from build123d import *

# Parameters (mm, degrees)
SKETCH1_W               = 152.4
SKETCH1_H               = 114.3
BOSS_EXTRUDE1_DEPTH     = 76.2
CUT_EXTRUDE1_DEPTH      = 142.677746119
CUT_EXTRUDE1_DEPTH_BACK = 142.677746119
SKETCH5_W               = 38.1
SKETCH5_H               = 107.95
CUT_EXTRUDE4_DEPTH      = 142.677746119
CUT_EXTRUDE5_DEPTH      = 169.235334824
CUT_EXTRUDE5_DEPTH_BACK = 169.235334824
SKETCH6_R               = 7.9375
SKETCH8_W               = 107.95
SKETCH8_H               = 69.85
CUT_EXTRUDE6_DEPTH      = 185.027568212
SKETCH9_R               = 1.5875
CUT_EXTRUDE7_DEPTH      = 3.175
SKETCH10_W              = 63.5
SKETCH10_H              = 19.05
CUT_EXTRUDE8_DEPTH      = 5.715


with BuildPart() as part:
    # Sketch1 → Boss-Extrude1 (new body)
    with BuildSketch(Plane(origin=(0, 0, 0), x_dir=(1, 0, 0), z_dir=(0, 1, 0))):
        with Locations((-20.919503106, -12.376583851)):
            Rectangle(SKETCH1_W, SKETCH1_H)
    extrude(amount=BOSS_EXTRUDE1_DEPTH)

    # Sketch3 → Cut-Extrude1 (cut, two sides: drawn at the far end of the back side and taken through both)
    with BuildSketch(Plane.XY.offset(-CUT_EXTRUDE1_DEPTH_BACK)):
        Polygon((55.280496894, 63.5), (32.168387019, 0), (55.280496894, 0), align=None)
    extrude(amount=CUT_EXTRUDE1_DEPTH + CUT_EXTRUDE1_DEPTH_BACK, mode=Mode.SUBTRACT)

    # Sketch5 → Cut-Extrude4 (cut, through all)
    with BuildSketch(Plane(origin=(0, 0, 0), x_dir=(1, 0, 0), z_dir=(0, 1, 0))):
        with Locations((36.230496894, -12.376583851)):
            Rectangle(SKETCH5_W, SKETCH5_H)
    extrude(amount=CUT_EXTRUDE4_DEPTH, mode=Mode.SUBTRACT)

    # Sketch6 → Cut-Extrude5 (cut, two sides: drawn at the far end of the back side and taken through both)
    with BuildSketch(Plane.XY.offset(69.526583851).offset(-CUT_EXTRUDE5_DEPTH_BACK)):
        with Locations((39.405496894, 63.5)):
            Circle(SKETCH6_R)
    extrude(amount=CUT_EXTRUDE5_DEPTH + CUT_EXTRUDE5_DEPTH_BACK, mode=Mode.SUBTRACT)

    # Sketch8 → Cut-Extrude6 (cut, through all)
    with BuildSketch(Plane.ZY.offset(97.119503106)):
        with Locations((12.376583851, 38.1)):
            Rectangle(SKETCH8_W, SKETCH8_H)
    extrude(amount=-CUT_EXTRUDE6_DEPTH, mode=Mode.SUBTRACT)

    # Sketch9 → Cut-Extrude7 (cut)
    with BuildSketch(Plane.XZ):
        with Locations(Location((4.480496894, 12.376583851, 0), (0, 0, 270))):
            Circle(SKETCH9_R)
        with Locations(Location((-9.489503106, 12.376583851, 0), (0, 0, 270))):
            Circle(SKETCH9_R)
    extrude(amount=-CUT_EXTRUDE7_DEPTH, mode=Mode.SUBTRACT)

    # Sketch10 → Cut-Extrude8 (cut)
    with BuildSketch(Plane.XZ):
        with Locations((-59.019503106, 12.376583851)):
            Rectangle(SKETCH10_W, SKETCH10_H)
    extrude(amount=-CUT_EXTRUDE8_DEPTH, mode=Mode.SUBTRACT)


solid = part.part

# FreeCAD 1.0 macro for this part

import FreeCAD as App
import Part
import Sketcher

V = App.Vector
Q = App.Units.Quantity


def add_polygon(sketch, points):
    """Adds a closed chain of lines whose ends are joined by coincident constraints."""
    first, n = sketch.GeometryCount, len(points)
    for a, b in zip(points, points[1:] + points[:1]):
        sketch.addGeometry(Part.LineSegment(App.Vector(*a, 0), App.Vector(*b, 0)), False)
    for i in range(n):
        sketch.addConstraint(Sketcher.Constraint("Coincident", first + i, 2, first + (i + 1) % n, 1))

doc = App.newDocument("Part")
body = doc.addObject("PartDesign::Body", "Body")

sketch1 = body.newObject("Sketcher::SketchObject", "Sketch")
sketch1.AttachmentSupport = (doc.getObject("XZ_Plane"), [""])
sketch1.MapMode = "FlatFace"
add_polygon(sketch1, [(-97, -45), (-97, 70), (55, 70), (55, -45)])
sketch1.addConstraint([
    Sketcher.Constraint("Vertical", 0),
    Sketcher.Constraint("Horizontal", 1),
    Sketcher.Constraint("Vertical", 2),
    Sketcher.Constraint("Horizontal", 3),
    Sketcher.Constraint("DistanceX", 1, 1, 1, 2, Q("6 in")),
    Sketcher.Constraint("DistanceY", 0, 1, 0, 2, Q("4.5 in")),
    Sketcher.Constraint("DistanceX", 0, 2, -1, 1, Q("97.119503 mm")),
    Sketcher.Constraint("DistanceY", -1, 1, 0, 2, Q("69.526584 mm")),
])
pad1 = body.newObject("PartDesign::Pad", "Pad")
pad1.Profile = sketch1
pad1.Length = Q("3 in")
pad1.Reversed = True

sketch2 = body.newObject("Sketcher::SketchObject", "Sketch001")
sketch2.AttachmentSupport = (doc.getObject("XY_Plane"), [""])
sketch2.MapMode = "FlatFace"
add_polygon(sketch2, [(55, 64), (32, 0), (55, 0)])
sketch2.addConstraint([
    Sketcher.Constraint("Horizontal", 1),
    Sketcher.Constraint("Vertical", 2),
    Sketcher.Constraint("PointOnObject", 0, 2, -1),
    Sketcher.Constraint("DistanceY", 2, 1, 2, 2, Q("2.5 in")),
    Sketcher.Constraint("Angle", 0, Q("-110 deg")),
    Sketcher.Constraint("DistanceX", -1, 1, 0, 2, Q("32.168387 mm")),
])
pocket1 = body.newObject("PartDesign::Pocket", "Pocket")
pocket1.Profile = sketch2
pocket1.Type = "ThroughAll"
pocket1.Midplane = True

sketch3 = body.newObject("Sketcher::SketchObject", "Sketch002")
sketch3.AttachmentSupport = (doc.getObject("XZ_Plane"), [""])
sketch3.MapMode = "FlatFace"
add_polygon(sketch3, [(17, -42), (17, 66), (55, 66), (55, -42)])
sketch3.addConstraint([
    Sketcher.Constraint("Vertical", 0),
    Sketcher.Constraint("Horizontal", 1),
    Sketcher.Constraint("Vertical", 2),
    Sketcher.Constraint("Horizontal", 3),
    Sketcher.Constraint("DistanceX", 1, 1, 1, 2, Q("1.5 in")),
    Sketcher.Constraint("DistanceY", 0, 1, 0, 2, Q("4.25 in")),
    Sketcher.Constraint("DistanceX", -1, 1, 0, 2, Q("17.180497 mm")),
    Sketcher.Constraint("DistanceY", -1, 1, 0, 2, Q("66.351584 mm")),
])
pocket2 = body.newObject("PartDesign::Pocket", "Pocket001")
pocket2.Profile = sketch3
pocket2.Type = "ThroughAll"

sketch4 = body.newObject("Sketcher::SketchObject", "Sketch003")
sketch4.AttachmentSupport = (doc.getObject("XY_Plane"), [""])
sketch4.MapMode = "FlatFace"
sketch4.AttachmentOffset = App.Placement(V(0, 0, 69.526584), App.Rotation())
sketch4.addGeometry(Part.Circle(V(39, 64, 0), V(0, 0, 1), 8), False)
sketch4.addConstraint([
    Sketcher.Constraint("Diameter", 0, Q("0.625 in")),
    Sketcher.Constraint("DistanceY", -1, 1, 0, 3, Q("2.5 in")),
    Sketcher.Constraint("DistanceX", -1, 1, 0, 3, Q("39.405497 mm")),
])
pocket3 = body.newObject("PartDesign::Pocket", "Pocket002")
pocket3.Profile = sketch4
pocket3.Type = "ThroughAll"
pocket3.Midplane = True

sketch5 = body.newObject("Sketcher::SketchObject", "Sketch004")
sketch5.AttachmentSupport = (doc.getObject("YZ_Plane"), [""])
sketch5.MapMode = "FlatFace"
sketch5.AttachmentOffset = App.Placement(V(0, 0, -97.119503), App.Rotation())
add_polygon(sketch5, [(73, -42), (3, -42), (3, 66), (73, 66)])
sketch5.addConstraint([
    Sketcher.Constraint("Horizontal", 0),
    Sketcher.Constraint("Vertical", 1),
    Sketcher.Constraint("Horizontal", 2),
    Sketcher.Constraint("Vertical", 3),
    Sketcher.Constraint("DistanceX", 0, 2, 0, 1, Q("2.75 in")),
    Sketcher.Constraint("DistanceY", 1, 1, 1, 2, Q("4.25 in")),
    Sketcher.Constraint("DistanceX", -1, 1, 0, 2, Q("0.125 in")),
    Sketcher.Constraint("DistanceY", 0, 2, -1, 1, Q("41.598416 mm")),
])
pocket4 = body.newObject("PartDesign::Pocket", "Pocket003")
pocket4.Profile = sketch5
pocket4.Type = "ThroughAll"
pocket4.Reversed = True

sketch6 = body.newObject("Sketcher::SketchObject", "Sketch005")
sketch6.AttachmentSupport = (doc.getObject("XZ_Plane"), [""])
sketch6.MapMode = "FlatFace"
sketch6.addGeometry([
    Part.Circle(V(4.5, 12.4, 0), V(0, 0, 1), 1.6),
    Part.Circle(V(-9.5, 12.4, 0), V(0, 0, 1), 1.6),
], False)
sketch6.addConstraint([
    Sketcher.Constraint("Equal", 0, 1),
    Sketcher.Constraint("Horizontal", 0, 3, 1, 3),
    Sketcher.Constraint("Diameter", 0, Q("0.125 in")),
    Sketcher.Constraint("DistanceX", 1, 3, 0, 3, Q("0.55 in")),
    Sketcher.Constraint("DistanceX", -1, 1, 0, 3, Q("4.480497 mm")),
    Sketcher.Constraint("DistanceY", -1, 1, 0, 3, Q("12.376584 mm")),
])
pocket5 = body.newObject("PartDesign::Pocket", "Pocket004")
pocket5.Profile = sketch6
pocket5.Length = Q("0.125 in")

sketch7 = body.newObject("Sketcher::SketchObject", "Sketch006")
sketch7.AttachmentSupport = (doc.getObject("XZ_Plane"), [""])
sketch7.MapMode = "FlatFace"
add_polygon(sketch7, [(-91, 22), (-91, 3), (-27, 3), (-27, 22)])
sketch7.addConstraint([
    Sketcher.Constraint("Vertical", 0),
    Sketcher.Constraint("Horizontal", 1),
    Sketcher.Constraint("Vertical", 2),
    Sketcher.Constraint("Horizontal", 3),
    Sketcher.Constraint("DistanceX", 1, 1, 1, 2, Q("2.5 in")),
    Sketcher.Constraint("DistanceY", 0, 2, 0, 1, Q("0.75 in")),
    Sketcher.Constraint("DistanceX", 0, 2, -1, 1, Q("90.769503 mm")),
    Sketcher.Constraint("DistanceY", -1, 1, 0, 2, Q("2.851584 mm")),
])
pocket6 = body.newObject("PartDesign::Pocket", "Pocket005")
pocket6.Profile = sketch7
pocket6.Length = Q("0.225 in")

doc.recompute()
